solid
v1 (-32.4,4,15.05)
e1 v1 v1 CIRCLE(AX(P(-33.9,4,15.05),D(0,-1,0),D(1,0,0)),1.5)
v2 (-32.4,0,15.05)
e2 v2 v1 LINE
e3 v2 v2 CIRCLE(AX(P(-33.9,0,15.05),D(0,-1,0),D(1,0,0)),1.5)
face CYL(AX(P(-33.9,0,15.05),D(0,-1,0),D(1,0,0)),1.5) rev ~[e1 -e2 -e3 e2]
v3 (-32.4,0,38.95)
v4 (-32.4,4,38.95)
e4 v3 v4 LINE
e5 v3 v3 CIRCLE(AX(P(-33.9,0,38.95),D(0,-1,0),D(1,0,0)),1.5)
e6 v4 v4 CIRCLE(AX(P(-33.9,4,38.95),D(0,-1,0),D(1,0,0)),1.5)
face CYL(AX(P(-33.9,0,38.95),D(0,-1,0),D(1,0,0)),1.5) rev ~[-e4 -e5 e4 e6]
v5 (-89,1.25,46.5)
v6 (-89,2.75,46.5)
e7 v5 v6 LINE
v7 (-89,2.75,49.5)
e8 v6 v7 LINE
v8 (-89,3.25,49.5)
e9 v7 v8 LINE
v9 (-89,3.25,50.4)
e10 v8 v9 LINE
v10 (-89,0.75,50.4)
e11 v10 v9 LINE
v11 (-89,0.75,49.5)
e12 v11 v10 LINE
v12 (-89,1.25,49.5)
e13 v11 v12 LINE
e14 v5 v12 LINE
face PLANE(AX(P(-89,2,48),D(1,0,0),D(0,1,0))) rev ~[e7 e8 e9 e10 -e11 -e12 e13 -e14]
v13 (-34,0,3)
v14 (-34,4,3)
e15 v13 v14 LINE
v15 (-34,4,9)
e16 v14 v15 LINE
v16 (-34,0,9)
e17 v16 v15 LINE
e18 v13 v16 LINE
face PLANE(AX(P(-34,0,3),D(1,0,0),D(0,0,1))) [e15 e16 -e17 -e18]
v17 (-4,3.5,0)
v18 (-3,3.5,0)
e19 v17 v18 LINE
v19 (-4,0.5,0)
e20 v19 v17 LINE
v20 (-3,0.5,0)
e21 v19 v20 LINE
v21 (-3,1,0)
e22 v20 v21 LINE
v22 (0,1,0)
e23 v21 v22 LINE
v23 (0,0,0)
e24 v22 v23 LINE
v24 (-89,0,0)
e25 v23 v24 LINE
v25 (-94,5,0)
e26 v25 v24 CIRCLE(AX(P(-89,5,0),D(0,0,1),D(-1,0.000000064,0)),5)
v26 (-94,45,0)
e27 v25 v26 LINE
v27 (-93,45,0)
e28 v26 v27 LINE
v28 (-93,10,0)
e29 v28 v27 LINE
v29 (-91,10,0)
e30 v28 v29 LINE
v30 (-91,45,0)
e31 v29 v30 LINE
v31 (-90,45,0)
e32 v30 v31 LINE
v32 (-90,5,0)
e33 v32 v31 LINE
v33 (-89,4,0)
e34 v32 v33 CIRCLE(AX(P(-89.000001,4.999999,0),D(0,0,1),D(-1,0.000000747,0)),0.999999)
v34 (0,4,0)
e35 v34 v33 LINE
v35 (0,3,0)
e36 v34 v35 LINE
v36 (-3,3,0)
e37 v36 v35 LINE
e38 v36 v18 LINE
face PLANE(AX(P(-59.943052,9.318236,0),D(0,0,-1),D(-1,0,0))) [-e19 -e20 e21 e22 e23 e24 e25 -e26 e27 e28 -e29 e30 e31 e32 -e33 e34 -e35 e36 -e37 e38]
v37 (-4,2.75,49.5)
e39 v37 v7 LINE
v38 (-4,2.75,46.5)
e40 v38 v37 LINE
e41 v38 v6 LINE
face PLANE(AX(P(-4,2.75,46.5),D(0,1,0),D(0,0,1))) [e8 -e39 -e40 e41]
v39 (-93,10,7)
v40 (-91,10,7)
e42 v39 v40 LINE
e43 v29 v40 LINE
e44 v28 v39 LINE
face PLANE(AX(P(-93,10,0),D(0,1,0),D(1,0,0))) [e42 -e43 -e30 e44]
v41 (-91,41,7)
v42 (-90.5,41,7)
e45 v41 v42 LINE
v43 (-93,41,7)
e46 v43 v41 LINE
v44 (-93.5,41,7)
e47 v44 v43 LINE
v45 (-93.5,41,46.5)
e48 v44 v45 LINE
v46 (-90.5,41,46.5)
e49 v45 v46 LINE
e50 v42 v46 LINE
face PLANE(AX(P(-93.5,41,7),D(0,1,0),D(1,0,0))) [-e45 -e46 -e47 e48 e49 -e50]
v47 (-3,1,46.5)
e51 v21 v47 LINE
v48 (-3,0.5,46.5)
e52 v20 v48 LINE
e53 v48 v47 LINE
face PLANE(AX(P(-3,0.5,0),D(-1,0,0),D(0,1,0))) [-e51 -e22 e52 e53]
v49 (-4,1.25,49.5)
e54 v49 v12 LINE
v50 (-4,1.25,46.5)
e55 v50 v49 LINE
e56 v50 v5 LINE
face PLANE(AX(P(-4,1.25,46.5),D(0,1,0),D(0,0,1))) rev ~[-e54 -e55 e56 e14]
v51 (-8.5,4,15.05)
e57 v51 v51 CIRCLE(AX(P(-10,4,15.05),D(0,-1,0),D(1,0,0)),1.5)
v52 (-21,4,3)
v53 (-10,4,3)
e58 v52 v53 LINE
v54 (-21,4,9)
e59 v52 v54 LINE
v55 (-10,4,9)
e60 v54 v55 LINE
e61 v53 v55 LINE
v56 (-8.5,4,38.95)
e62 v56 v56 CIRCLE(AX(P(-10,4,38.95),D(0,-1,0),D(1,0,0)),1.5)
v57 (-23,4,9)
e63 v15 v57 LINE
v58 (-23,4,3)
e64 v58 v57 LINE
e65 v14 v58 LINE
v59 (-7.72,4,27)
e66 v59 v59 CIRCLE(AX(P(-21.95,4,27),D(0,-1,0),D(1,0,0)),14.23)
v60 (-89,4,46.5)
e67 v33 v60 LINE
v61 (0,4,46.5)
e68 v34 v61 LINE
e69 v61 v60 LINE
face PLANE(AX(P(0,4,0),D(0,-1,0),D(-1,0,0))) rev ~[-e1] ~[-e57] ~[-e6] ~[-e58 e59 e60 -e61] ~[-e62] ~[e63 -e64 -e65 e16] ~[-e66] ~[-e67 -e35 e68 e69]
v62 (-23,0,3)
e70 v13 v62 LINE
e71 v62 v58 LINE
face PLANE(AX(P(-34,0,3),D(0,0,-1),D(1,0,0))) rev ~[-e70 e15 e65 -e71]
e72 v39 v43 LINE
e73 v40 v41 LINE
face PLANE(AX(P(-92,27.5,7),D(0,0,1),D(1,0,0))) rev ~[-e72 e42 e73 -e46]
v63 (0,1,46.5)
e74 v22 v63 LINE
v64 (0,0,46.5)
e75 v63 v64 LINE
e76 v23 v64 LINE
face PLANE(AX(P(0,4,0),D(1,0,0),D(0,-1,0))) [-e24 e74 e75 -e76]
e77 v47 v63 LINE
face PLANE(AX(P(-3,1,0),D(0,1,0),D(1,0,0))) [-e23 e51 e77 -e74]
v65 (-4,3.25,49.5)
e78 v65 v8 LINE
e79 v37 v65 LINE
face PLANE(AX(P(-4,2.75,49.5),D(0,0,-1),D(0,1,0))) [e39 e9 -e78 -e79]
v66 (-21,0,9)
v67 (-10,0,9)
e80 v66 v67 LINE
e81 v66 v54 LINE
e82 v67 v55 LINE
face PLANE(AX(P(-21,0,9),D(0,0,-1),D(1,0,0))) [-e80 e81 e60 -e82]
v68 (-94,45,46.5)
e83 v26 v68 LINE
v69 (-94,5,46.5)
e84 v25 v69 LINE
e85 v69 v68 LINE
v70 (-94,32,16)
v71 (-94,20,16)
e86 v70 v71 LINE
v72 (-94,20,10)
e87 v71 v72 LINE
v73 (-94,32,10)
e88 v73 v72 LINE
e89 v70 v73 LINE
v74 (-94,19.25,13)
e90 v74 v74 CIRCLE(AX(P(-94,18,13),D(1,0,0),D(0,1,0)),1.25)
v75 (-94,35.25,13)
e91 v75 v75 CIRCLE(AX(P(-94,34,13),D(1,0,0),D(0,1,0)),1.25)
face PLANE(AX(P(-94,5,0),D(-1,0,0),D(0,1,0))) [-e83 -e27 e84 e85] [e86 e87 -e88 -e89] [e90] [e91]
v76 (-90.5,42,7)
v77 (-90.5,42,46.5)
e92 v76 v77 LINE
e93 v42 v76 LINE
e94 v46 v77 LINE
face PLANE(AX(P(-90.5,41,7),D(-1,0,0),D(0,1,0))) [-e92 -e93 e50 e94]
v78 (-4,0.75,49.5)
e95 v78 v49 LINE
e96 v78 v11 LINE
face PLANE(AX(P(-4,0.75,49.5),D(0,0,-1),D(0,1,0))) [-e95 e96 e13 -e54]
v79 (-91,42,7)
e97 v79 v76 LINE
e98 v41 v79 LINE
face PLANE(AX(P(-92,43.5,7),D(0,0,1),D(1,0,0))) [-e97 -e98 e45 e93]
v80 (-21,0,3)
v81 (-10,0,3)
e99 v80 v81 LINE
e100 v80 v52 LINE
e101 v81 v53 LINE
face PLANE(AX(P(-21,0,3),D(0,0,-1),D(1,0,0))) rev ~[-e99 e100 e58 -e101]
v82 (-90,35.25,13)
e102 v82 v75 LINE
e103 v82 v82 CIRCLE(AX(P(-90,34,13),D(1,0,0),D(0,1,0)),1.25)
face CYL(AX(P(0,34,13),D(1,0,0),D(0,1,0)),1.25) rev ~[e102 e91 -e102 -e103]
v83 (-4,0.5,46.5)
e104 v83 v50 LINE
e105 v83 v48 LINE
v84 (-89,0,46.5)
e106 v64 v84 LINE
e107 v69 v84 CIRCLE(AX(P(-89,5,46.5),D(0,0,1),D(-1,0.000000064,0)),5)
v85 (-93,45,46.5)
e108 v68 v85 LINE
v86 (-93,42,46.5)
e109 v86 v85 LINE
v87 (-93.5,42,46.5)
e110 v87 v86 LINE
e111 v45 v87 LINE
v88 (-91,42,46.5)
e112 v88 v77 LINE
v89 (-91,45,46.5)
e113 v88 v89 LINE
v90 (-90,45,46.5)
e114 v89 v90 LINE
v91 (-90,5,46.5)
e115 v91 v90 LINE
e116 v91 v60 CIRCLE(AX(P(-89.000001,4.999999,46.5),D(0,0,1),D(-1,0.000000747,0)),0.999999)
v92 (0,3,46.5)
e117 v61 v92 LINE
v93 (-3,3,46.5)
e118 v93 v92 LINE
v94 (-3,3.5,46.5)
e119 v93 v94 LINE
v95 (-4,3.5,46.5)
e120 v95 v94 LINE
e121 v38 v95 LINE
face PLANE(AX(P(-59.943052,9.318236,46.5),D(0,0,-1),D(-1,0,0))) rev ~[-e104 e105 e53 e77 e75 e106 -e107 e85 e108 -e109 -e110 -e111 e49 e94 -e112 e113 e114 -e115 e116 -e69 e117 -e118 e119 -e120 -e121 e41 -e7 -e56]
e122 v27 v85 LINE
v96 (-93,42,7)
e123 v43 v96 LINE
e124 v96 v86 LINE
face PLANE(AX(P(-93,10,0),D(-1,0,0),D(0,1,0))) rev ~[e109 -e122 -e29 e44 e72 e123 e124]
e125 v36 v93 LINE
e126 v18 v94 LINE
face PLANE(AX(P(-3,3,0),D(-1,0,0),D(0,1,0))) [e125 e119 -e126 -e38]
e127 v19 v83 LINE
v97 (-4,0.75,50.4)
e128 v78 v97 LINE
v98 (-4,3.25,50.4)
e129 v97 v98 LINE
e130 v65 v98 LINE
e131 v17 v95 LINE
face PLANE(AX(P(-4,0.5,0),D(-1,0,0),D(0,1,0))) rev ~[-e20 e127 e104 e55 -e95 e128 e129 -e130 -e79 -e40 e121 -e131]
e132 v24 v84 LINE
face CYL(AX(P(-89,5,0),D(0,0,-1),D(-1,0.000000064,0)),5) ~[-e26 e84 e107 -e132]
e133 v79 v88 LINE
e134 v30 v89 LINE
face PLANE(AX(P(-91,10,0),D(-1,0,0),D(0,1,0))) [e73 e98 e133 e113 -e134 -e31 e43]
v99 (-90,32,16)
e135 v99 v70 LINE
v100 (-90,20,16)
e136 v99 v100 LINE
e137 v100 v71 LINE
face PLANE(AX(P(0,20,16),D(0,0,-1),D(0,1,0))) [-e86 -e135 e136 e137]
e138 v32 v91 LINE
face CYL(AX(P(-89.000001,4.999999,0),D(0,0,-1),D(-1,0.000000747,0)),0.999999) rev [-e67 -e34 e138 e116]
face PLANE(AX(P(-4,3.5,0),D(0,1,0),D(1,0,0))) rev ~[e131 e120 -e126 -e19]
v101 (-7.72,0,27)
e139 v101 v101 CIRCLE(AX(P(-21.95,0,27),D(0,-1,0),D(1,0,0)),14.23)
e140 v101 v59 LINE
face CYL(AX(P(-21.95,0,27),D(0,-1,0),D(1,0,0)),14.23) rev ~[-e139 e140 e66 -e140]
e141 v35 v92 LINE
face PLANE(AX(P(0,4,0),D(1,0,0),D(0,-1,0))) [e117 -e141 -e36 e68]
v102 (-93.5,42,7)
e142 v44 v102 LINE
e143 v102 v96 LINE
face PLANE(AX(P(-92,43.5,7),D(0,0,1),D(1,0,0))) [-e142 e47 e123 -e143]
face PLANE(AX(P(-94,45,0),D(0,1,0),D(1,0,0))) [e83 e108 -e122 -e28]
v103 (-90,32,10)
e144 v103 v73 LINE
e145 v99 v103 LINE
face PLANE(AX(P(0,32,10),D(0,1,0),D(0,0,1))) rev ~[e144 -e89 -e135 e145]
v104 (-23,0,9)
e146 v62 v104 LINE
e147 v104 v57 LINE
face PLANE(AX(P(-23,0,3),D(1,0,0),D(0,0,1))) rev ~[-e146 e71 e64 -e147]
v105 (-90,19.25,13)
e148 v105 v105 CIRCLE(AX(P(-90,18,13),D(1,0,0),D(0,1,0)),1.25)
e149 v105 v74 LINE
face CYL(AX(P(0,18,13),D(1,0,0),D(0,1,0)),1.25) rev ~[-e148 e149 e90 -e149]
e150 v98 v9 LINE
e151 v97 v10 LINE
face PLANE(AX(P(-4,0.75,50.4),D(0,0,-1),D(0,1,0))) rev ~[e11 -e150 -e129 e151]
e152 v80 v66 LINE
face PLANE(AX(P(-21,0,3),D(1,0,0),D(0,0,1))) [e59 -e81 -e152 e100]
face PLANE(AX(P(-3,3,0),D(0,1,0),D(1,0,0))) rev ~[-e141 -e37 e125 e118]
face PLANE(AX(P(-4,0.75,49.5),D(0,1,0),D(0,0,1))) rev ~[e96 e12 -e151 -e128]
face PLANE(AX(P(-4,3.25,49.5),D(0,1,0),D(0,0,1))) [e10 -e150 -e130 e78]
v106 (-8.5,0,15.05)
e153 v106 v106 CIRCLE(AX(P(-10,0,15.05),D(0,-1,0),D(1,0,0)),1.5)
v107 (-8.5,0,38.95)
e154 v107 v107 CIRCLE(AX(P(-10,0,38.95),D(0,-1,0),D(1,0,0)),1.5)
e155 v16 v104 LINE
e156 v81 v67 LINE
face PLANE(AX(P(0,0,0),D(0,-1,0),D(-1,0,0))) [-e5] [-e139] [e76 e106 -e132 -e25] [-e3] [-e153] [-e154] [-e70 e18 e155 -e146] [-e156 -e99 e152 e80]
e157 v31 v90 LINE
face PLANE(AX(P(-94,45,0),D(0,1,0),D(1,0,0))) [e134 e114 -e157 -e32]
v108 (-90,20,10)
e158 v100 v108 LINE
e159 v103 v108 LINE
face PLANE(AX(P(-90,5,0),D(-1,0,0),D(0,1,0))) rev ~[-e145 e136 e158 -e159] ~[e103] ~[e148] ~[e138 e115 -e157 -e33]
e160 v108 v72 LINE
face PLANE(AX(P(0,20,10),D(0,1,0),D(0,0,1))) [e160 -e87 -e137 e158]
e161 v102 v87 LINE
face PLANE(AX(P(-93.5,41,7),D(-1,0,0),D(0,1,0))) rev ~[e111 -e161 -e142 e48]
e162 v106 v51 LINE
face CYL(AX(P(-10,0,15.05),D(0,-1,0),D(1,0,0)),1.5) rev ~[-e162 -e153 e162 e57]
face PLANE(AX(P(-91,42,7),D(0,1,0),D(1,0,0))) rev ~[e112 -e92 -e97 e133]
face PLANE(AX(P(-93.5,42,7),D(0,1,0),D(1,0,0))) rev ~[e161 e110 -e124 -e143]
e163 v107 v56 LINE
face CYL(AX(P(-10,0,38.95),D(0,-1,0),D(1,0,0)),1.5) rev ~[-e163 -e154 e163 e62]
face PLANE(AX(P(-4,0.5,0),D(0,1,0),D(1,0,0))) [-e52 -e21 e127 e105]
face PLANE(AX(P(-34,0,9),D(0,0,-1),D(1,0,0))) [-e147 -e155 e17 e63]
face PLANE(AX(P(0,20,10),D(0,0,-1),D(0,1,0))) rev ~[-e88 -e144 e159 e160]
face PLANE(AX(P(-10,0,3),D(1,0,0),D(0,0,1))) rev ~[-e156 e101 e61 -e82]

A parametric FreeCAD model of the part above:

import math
import FreeCAD as App
import Part
import Sketcher


def add_polygon(sketch, points):
    """Adds a closed chain of lines whose ends are joined by coincident constraints."""
    first, n = sketch.GeometryCount, len(points)
    for a, b in zip(points, points[1:] + points[:1]):
        sketch.addGeometry(Part.LineSegment(App.Vector(*a, 0), App.Vector(*b, 0)), False)
    for i in range(n):
        sketch.addConstraint(Sketcher.Constraint("Coincident", first + i, 2, first + (i + 1) % n, 1))

doc = App.newDocument("Part")
body = doc.addObject("PartDesign::Body", "Body")

# Sketch on XY plane
sketch1 = doc.addObject("Sketcher::SketchObject", "Sketch")
body.addObject(sketch1)
sketch1.AttachmentSupport = (doc.XY_Plane, [""])
sketch1.MapMode = "FlatFace"
sketch1.addGeometry([
    Part.LineSegment(App.Vector(-89, 0, 0), App.Vector(0, 0, 0)),  # 0
    Part.LineSegment(App.Vector(0, 0, 0), App.Vector(0, 4, 0)),  # 1
    Part.LineSegment(App.Vector(0, 4, 0), App.Vector(-89, 4, 0)),  # 2
    Part.ArcOfCircle(Part.Circle(App.Vector(-89, 5, 0), App.Vector(0, 0, 1), 1), math.radians(180), math.radians(270)),  # 3
    Part.LineSegment(App.Vector(-90, 5, 0), App.Vector(-90, 45, 0)),  # 4
    Part.LineSegment(App.Vector(-90, 45, 0), App.Vector(-94, 45, 0)),  # 5
    Part.LineSegment(App.Vector(-94, 45, 0), App.Vector(-94, 5, 0)),  # 6
    Part.ArcOfCircle(Part.Circle(App.Vector(-89, 5, 0), App.Vector(0, 0, 1), 5), math.radians(180), math.radians(270)),  # 7
], False)
sketch1.addConstraint([
    Sketcher.Constraint("Coincident", 0, 2, 1, 1),
    Sketcher.Constraint("Coincident", 1, 2, 2, 1),
    Sketcher.Constraint("Tangent", 2, 2, 3, 2),
    Sketcher.Constraint("Tangent", 3, 1, 4, 1),
    Sketcher.Constraint("Coincident", 4, 2, 5, 1),
    Sketcher.Constraint("Coincident", 5, 2, 6, 1),
    Sketcher.Constraint("Tangent", 6, 2, 7, 1),
    Sketcher.Constraint("Tangent", 7, 2, 0, 1),
    Sketcher.Constraint("Horizontal", 0),
    Sketcher.Constraint("Vertical", 1),
    Sketcher.Constraint("Horizontal", 2),
    Sketcher.Constraint("Vertical", 4),
    Sketcher.Constraint("Horizontal", 5),
    Sketcher.Constraint("Vertical", 6),
    Sketcher.Constraint("Coincident", 0, 2, -1, 1),
    Sketcher.Constraint("Coincident", 7, 3, 3, 3),
    Sketcher.Constraint("Radius", 3, 0.999999),
    Sketcher.Constraint("Radius", 7, 5.0),
    Sketcher.Constraint("DistanceX", 0, 1, 0, 2, 89.0),
    Sketcher.Constraint("DistanceY", 4, 1, 4, 2, 40.0),
])
pad1 = doc.addObject("PartDesign::Pad", "Pad")
body.addObject(pad1)
pad1.Profile = sketch1
pad1.Length = 46.5

# Sketch on XY plane
sketch2 = doc.addObject("Sketcher::SketchObject", "Sketch001")
body.addObject(sketch2)
sketch2.AttachmentSupport = (doc.XY_Plane, [""])
sketch2.MapMode = "FlatFace"
add_polygon(sketch2, [(-3, 1), (0, 1), (0, 3), (-3, 3), (-3, 3.5), (-4, 3.5), (-4, 0.5), (-3, 0.5)])  # lines 0-7
sketch2.addConstraint([
    Sketcher.Constraint("Horizontal", 0),
    Sketcher.Constraint("Vertical", 1),
    Sketcher.Constraint("Horizontal", 2),
    Sketcher.Constraint("Vertical", 3),
    Sketcher.Constraint("Horizontal", 4),
    Sketcher.Constraint("Vertical", 5),
    Sketcher.Constraint("Horizontal", 6),
    Sketcher.Constraint("Vertical", 7),
    Sketcher.Constraint("PointOnObject", 0, 2, -2),
    Sketcher.Constraint("Vertical", 3, 2, 6, 2),
    Sketcher.Constraint("Equal", 2, 5),
    Sketcher.Constraint("Equal", 3, 7),
    Sketcher.Constraint("DistanceX", 0, 1, 0, 2, 3.0),
    Sketcher.Constraint("DistanceX", 4, 2, 4, 1, 1.0),
    Sketcher.Constraint("DistanceY", 1, 1, 1, 2, 2.0),
    Sketcher.Constraint("DistanceY", -1, 1, 0, 2, 1.0),
])
pocket1 = doc.addObject("PartDesign::Pocket", "Pocket")
body.addObject(pocket1)
pocket1.Profile = sketch2
pocket1.Type = "ThroughAll"
pocket1.Reversed = True

# Sketch on XZ plane
sketch3 = doc.addObject("Sketcher::SketchObject", "Sketch002")
body.addObject(sketch3)
sketch3.AttachmentSupport = (doc.XZ_Plane, [""])
sketch3.MapMode = "FlatFace"
sketch3.addGeometry([
    Part.Circle(App.Vector(-21.9, 27, 0), App.Vector(0, 0, 1), 14.2),  # 0
    Part.Circle(App.Vector(-10, 39, 0), App.Vector(0, 0, 1), 1.5),  # 1
    Part.Circle(App.Vector(-33.9, 39, 0), App.Vector(0, 0, 1), 1.5),  # 2
    Part.Circle(App.Vector(-33.9, 15.1, 0), App.Vector(0, 0, 1), 1.5),  # 3
    Part.Circle(App.Vector(-10, 15.1, 0), App.Vector(0, 0, 1), 1.5),  # 4
], False)
sketch3.addConstraint([
    Sketcher.Constraint("Equal", 1, 2),
    Sketcher.Constraint("Equal", 2, 3),
    Sketcher.Constraint("Equal", 3, 4),
    Sketcher.Constraint("Horizontal", 1, 3, 2, 3),
    Sketcher.Constraint("Horizontal", 3, 3, 4, 3),
    Sketcher.Constraint("Vertical", 2, 3, 3, 3),
    Sketcher.Constraint("Vertical", 1, 3, 4, 3),
    Sketcher.Constraint("Diameter", 1, 3.0),
    Sketcher.Constraint("Diameter", 0, 28.46),
    Sketcher.Constraint("DistanceY", -1, 1, 0, 3, 27.0),
    Sketcher.Constraint("DistanceX", 1, 3, -1, 1, 10.0),
    Sketcher.Constraint("DistanceX", 2, 3, -1, 1, 33.9),
    Sketcher.Constraint("DistanceY", 3, 3, 2, 3, 23.9),
    Sketcher.Constraint("DistanceX", 0, 3, -1, 1, 21.95),
    Sketcher.Constraint("DistanceY", -1, 1, 1, 3, 38.95),
])
pocket2 = doc.addObject("PartDesign::Pocket", "Pocket001")
body.addObject(pocket2)
pocket2.Profile = sketch3
pocket2.Length = 5

# Sketch on XY plane
sketch4 = doc.addObject("Sketcher::SketchObject", "Sketch003")
body.addObject(sketch4)
sketch4.AttachmentSupport = (doc.XY_Plane, [""])
sketch4.MapMode = "FlatFace"
add_polygon(sketch4, [(-93, 45), (-93, 10), (-91, 10), (-91, 45)])  # lines 0-3
sketch4.addConstraint([
    Sketcher.Constraint("Vertical", 0),
    Sketcher.Constraint("Horizontal", 1),
    Sketcher.Constraint("Vertical", 2),
    Sketcher.Constraint("Horizontal", 3),
    Sketcher.Constraint("DistanceX", 1, 1, 1, 2, 2.0),
    Sketcher.Constraint("DistanceY", 0, 2, 0, 1, 35.0),
    Sketcher.Constraint("DistanceX", 0, 2, -1, 1, 93.0),
    Sketcher.Constraint("DistanceY", -1, 1, 0, 2, 10.0),
])
pocket3 = doc.addObject("PartDesign::Pocket", "Pocket002")
body.addObject(pocket3)
pocket3.Profile = sketch4
pocket3.Length = 7
pocket3.Reversed = True

# Sketch on XY plane
sketch5 = doc.addObject("Sketcher::SketchObject", "Sketch004")
body.addObject(sketch5)
sketch5.AttachmentSupport = (doc.XY_Plane, [""])
sketch5.MapMode = "FlatFace"
sketch5.AttachmentOffset = App.Placement(App.Vector(0, 0, 7), App.Rotation())
add_polygon(sketch5, [(-93, 45), (-93, 42), (-93.5, 42), (-93.5, 41), (-90.5, 41), (-90.5, 42), (-91, 42), (-91, 45)])  # lines 0-7
sketch5.addConstraint([
    Sketcher.Constraint("Vertical", 0),
    Sketcher.Constraint("Horizontal", 1),
    Sketcher.Constraint("Vertical", 2),
    Sketcher.Constraint("Horizontal", 3),
    Sketcher.Constraint("Vertical", 4),
    Sketcher.Constraint("Horizontal", 5),
    Sketcher.Constraint("Vertical", 6),
    Sketcher.Constraint("Horizontal", 7),
    Sketcher.Constraint("Horizontal", 1, 2, 4, 2),
    Sketcher.Constraint("Equal", 1, 5),
    Sketcher.Constraint("Equal", 3, 0),
    Sketcher.Constraint("DistanceX", 3, 1, 3, 2, 3.0),
    Sketcher.Constraint("DistanceX", 7, 2, 7, 1, 2.0),
    Sketcher.Constraint("DistanceY", 2, 2, 2, 1, 1.0),
    Sketcher.Constraint("DistanceX", 0, 2, -1, 1, 93.0),
    Sketcher.Constraint("DistanceY", -1, 1, 0, 2, 42.0),
])
pocket4 = doc.addObject("PartDesign::Pocket", "Pocket003")
body.addObject(pocket4)
pocket4.Profile = sketch5
pocket4.Length = 40
pocket4.Reversed = True

# Sketch on YZ plane
sketch6 = doc.addObject("Sketcher::SketchObject", "Sketch005")
body.addObject(sketch6)
sketch6.AttachmentSupport = (doc.YZ_Plane, [""])
sketch6.MapMode = "FlatFace"
sketch6.AttachmentOffset = App.Placement(App.Vector(0, 0, -4), App.Rotation())
add_polygon(sketch6, [(1.2, 49.5), (1.2, 46.5), (2.8, 46.5), (2.8, 49.5), (3.2, 49.5), (3.2, 50.4), (0.8, 50.4), (0.8, 49.5)])  # lines 0-7
sketch6.addConstraint([
    Sketcher.Constraint("Vertical", 0),
    Sketcher.Constraint("Horizontal", 1),
    Sketcher.Constraint("Vertical", 2),
    Sketcher.Constraint("Horizontal", 3),
    Sketcher.Constraint("Vertical", 4),
    Sketcher.Constraint("Horizontal", 5),
    Sketcher.Constraint("Vertical", 6),
    Sketcher.Constraint("Horizontal", 7),
    Sketcher.Constraint("Horizontal", 3, 2, 6, 2),
    Sketcher.Constraint("Equal", 3, 7),
    Sketcher.Constraint("DistanceY", 0, 2, 0, 1, 3.0),
    Sketcher.Constraint("DistanceX", 1, 1, 1, 2, 1.5),
    Sketcher.Constraint("DistanceX", 3, 1, 3, 2, 0.5),
    Sketcher.Constraint("DistanceY", 4, 1, 4, 2, 0.9),
    Sketcher.Constraint("DistanceY", -1, 1, 0, 2, 46.5),
    Sketcher.Constraint("DistanceX", -1, 1, 0, 2, 1.25),
])
pad2 = doc.addObject("PartDesign::Pad", "Pad001")
body.addObject(pad2)
pad2.Profile = sketch6
pad2.Length = 85
pad2.Reversed = True

# Sketch on YZ plane
sketch7 = doc.addObject("Sketcher::SketchObject", "Sketch006")
body.addObject(sketch7)
sketch7.AttachmentSupport = (doc.YZ_Plane, [""])
sketch7.MapMode = "FlatFace"
sketch7.addGeometry(Part.Circle(App.Vector(34, 13, 0), App.Vector(0, 0, 1), 1.2), False)  # 0
sketch7.addGeometry(Part.Circle(App.Vector(18, 13, 0), App.Vector(0, 0, 1), 1.2), False)  # 1
add_polygon(sketch7, [(20, 16), (20, 10), (32, 10), (32, 16)])  # lines 2-5
sketch7.addConstraint([
    Sketcher.Constraint("Vertical", 2),
    Sketcher.Constraint("Horizontal", 3),
    Sketcher.Constraint("Vertical", 4),
    Sketcher.Constraint("Horizontal", 5),
    Sketcher.Constraint("Equal", 0, 1),
    Sketcher.Constraint("Horizontal", 0, 3, 1, 3),
    Sketcher.Constraint("Diameter", 0, 2.5),
    Sketcher.Constraint("DistanceX", 3, 1, 3, 2, 12.0),
    Sketcher.Constraint("DistanceY", 2, 2, 2, 1, 6.0),
    Sketcher.Constraint("DistanceX", -1, 1, 0, 3, 34.0),
    Sketcher.Constraint("DistanceY", -1, 1, 0, 3, 13.0),
    Sketcher.Constraint("DistanceX", -1, 1, 1, 3, 18.0),
    Sketcher.Constraint("DistanceX", -1, 1, 2, 2, 20.0),
    Sketcher.Constraint("DistanceY", -1, 1, 2, 2, 10.0),
])
pocket5 = doc.addObject("PartDesign::Pocket", "Pocket004")
body.addObject(pocket5)
pocket5.Profile = sketch7
pocket5.Type = "ThroughAll"

# Sketch on XZ plane
sketch8 = doc.addObject("Sketcher::SketchObject", "Sketch007")
body.addObject(sketch8)
sketch8.AttachmentSupport = (doc.XZ_Plane, [""])
sketch8.MapMode = "FlatFace"
add_polygon(sketch8, [(-21, 9), (-21, 3), (-10, 3), (-10, 9)])  # lines 0-3
add_polygon(sketch8, [(-34, 9), (-34, 3), (-23, 3), (-23, 9)])  # lines 4-7
sketch8.addConstraint([
    Sketcher.Constraint("Vertical", 0),
    Sketcher.Constraint("Horizontal", 1),
    Sketcher.Constraint("Vertical", 2),
    Sketcher.Constraint("Horizontal", 3),
    Sketcher.Constraint("Vertical", 4),
    Sketcher.Constraint("Horizontal", 5),
    Sketcher.Constraint("Vertical", 6),
    Sketcher.Constraint("Horizontal", 7),
    Sketcher.Constraint("Horizontal", 1, 2, 4, 2),
    Sketcher.Constraint("Horizontal", 3, 2, 6, 2),
    Sketcher.Constraint("Equal", 3, 5),
    Sketcher.Constraint("DistanceX", 1, 1, 1, 2, 11.0),
    Sketcher.Constraint("DistanceY", 0, 2, 0, 1, 6.0),
    Sketcher.Constraint("DistanceX", 0, 2, -1, 1, 21.0),
    Sketcher.Constraint("DistanceY", -1, 1, 0, 2, 3.0),
    Sketcher.Constraint("DistanceX", 4, 2, -1, 1, 34.0),
])
pocket6 = doc.addObject("PartDesign::Pocket", "Pocket005")
body.addObject(pocket6)
pocket6.Profile = sketch8
pocket6.Length = 5

doc.recompute()
